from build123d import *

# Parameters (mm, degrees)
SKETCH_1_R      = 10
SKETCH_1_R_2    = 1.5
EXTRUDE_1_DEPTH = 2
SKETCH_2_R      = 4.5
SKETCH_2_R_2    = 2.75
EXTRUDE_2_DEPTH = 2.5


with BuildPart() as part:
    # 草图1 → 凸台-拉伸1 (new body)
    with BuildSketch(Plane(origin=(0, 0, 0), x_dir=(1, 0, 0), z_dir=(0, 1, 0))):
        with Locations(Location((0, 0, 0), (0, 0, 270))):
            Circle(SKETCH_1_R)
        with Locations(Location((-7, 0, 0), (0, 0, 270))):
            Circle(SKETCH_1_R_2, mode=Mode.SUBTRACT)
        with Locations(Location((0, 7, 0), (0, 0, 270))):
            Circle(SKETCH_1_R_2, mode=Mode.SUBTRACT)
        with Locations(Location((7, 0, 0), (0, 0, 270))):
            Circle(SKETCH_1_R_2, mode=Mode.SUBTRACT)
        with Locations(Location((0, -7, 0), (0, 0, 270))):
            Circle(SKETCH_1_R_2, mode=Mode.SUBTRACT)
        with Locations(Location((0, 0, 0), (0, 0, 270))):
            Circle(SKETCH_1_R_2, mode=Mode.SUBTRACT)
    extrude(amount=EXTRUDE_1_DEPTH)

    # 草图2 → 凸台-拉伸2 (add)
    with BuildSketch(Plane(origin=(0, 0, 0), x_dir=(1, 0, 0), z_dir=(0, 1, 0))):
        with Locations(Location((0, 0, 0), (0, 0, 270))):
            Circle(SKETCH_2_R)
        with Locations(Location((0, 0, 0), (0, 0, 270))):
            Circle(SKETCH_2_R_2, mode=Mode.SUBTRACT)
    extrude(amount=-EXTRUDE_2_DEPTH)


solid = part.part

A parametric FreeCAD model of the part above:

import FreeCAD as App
import Part
import Sketcher
from FreeCAD import Vector

doc = App.newDocument("Part")
body = doc.addObject("PartDesign::Body", "Body")

# Sketch on XZ plane
sketch1 = body.newObject("Sketcher::SketchObject", "Sketch")
sketch1.AttachmentSupport = (doc.getObject("XZ_Plane"), [""])
sketch1.MapMode = "FlatFace"
sketch1.addGeometry([
    Part.Circle(Vector(0, 0, 0), Vector(0, 0, 1), 10),  # 0
    Part.Circle(Vector(0, -7, 0), Vector(0, 0, 1), 1.5),  # 1
    Part.Circle(Vector(-7, 0, 0), Vector(0, 0, 1), 1.5),  # 2
    Part.Circle(Vector(7, 0, 0), Vector(0, 0, 1), 1.5),  # 3
    Part.Circle(Vector(0, 0, 0), Vector(0, 0, 1), 1.5),  # 4
    Part.Circle(Vector(0, 7, 0), Vector(0, 0, 1), 1.5),  # 5
], False)
sketch1.addConstraint([
    Sketcher.Constraint("Coincident", 0, 3, -1, 1),
    Sketcher.Constraint("Coincident", 4, 3, -1, 1),
    Sketcher.Constraint("Equal", 1, 2),
    Sketcher.Constraint("Equal", 2, 3),
    Sketcher.Constraint("Equal", 3, 4),
    Sketcher.Constraint("Equal", 4, 5),
    Sketcher.Constraint("Symmetric", 2, 3, 3, 3, -1, 1),
    Sketcher.Constraint("Symmetric", 1, 3, 5, 3, -1, 1),
    Sketcher.Constraint("PointOnObject", 1, 3, -2),
    Sketcher.Constraint("PointOnObject", 2, 3, -1),
    Sketcher.Constraint("Diameter", 0, 20.0),
    Sketcher.Constraint("Diameter", 1, 3.0),
    Sketcher.Constraint("DistanceY", 1, 3, -1, 1, 7.0),
    Sketcher.Constraint("DistanceX", 2, 3, -1, 1, 7.0),
])
pad1 = body.newObject("PartDesign::Pad", "Pad")
pad1.Profile = sketch1
pad1.Length = 2
pad1.Reversed = True

# Sketch on XZ plane
sketch2 = body.newObject("Sketcher::SketchObject", "Sketch001")
sketch2.AttachmentSupport = (doc.getObject("XZ_Plane"), [""])
sketch2.MapMode = "FlatFace"
sketch2.addGeometry([
    Part.Circle(Vector(0, 0, 0), Vector(0, 0, 1), 4.5),
    Part.Circle(Vector(0, 0, 0), Vector(0, 0, 1), 2.8),
], False)
sketch2.addConstraint([
    Sketcher.Constraint("Coincident", 0, 3, -1, 1),
    Sketcher.Constraint("Coincident", 1, 3, -1, 1),
    Sketcher.Constraint("Diameter", 0, 9.0),
    Sketcher.Constraint("Diameter", 1, 5.5),
])
pad2 = body.newObject("PartDesign::Pad", "Pad001")
pad2.Profile = sketch2
pad2.Length = 2.5

doc.recompute()
